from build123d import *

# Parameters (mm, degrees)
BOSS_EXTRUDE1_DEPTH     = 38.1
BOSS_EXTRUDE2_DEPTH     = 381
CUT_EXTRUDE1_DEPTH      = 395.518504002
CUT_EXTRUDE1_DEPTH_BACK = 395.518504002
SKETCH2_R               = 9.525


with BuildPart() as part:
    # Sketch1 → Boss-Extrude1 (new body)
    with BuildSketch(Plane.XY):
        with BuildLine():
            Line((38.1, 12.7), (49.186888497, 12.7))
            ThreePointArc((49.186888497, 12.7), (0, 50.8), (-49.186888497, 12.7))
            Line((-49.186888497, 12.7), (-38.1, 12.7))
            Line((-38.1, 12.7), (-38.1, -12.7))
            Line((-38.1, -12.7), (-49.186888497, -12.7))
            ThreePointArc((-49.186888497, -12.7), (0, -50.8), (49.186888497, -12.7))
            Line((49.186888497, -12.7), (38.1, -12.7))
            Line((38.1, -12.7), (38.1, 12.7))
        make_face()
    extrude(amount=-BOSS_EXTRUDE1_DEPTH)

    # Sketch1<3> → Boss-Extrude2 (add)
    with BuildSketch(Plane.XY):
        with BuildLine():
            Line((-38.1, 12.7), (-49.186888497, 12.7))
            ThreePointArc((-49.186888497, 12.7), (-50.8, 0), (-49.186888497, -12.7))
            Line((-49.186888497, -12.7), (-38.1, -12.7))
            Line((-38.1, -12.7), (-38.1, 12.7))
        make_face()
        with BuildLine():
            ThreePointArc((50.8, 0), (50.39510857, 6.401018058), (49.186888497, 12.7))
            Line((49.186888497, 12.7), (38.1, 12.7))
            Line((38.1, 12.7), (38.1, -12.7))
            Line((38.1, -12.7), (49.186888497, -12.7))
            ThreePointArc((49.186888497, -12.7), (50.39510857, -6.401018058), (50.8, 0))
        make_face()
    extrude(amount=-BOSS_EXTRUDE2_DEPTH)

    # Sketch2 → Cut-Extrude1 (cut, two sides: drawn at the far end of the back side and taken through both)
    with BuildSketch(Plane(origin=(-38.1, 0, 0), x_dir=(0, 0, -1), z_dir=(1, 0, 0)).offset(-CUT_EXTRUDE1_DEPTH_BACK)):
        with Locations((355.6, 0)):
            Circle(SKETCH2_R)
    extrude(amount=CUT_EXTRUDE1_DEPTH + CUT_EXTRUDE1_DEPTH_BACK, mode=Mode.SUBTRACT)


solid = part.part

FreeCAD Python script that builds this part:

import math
import FreeCAD as App
import Part
import Sketcher
from FreeCAD import Vector
Q = App.Units.Quantity

doc = App.newDocument("Part")
body = doc.addObject("PartDesign::Body", "Body")

# Sketch on XY plane
sketch1 = body.newObject("Sketcher::SketchObject", "Sketch")
sketch1.AttachmentSupport = (doc.getObject("XY_Plane"), [""])
sketch1.MapMode = "FlatFace"
sketch1.addGeometry([
    Part.LineSegment(Vector(38, 13, 0), Vector(49, 13, 0)),  # 0
    Part.ArcOfCircle(Part.Circle(Vector(0, 0, 0), Vector(0, 0, 1), 51), math.radians(14), math.radians(166)),  # 1
    Part.LineSegment(Vector(-49, 13, 0), Vector(-38, 13, 0)),  # 2
    Part.LineSegment(Vector(-38, 13, 0), Vector(-38, -13, 0)),  # 3
    Part.LineSegment(Vector(-38, -13, 0), Vector(-49, -13, 0)),  # 4
    Part.ArcOfCircle(Part.Circle(Vector(0, 0, 0), Vector(0, 0, 1), 51), math.radians(-166), math.radians(-14)),  # 5
    Part.LineSegment(Vector(49, -13, 0), Vector(38, -13, 0)),  # 6
    Part.LineSegment(Vector(38, -13, 0), Vector(38, 13, 0)),  # 7
], False)
sketch1.addConstraint([
    Sketcher.Constraint("Coincident", 0, 2, 1, 1),
    Sketcher.Constraint("Coincident", 1, 2, 2, 1),
    Sketcher.Constraint("Coincident", 2, 2, 3, 1),
    Sketcher.Constraint("Coincident", 3, 2, 4, 1),
    Sketcher.Constraint("Coincident", 4, 2, 5, 1),
    Sketcher.Constraint("Coincident", 5, 2, 6, 1),
    Sketcher.Constraint("Coincident", 6, 2, 7, 1),
    Sketcher.Constraint("Coincident", 7, 2, 0, 1),
    Sketcher.Constraint("Horizontal", 0),
    Sketcher.Constraint("Horizontal", 2),
    Sketcher.Constraint("Vertical", 3),
    Sketcher.Constraint("Horizontal", 4),
    Sketcher.Constraint("Horizontal", 6),
    Sketcher.Constraint("Vertical", 7),
    Sketcher.Constraint("Coincident", 1, 3, -1, 1),
    Sketcher.Constraint("Coincident", 5, 3, -1, 1),
    Sketcher.Constraint("Equal", 1, 5),
    Sketcher.Constraint("Symmetric", 2, 2, 6, 2, -1, 1),
    Sketcher.Constraint("Horizontal", 0, 2, 1, 2),
    Sketcher.Constraint("Horizontal", 4, 2, 5, 2),
    Sketcher.Constraint("Radius", 1, Q("2 in")),
    Sketcher.Constraint("DistanceY", 3, 2, 3, 1, Q("1 in")),
    Sketcher.Constraint("DistanceX", 3, 2, 6, 2, Q("3 in")),
])
pad1 = body.newObject("PartDesign::Pad", "Pad")
pad1.Profile = sketch1
pad1.Length = Q("1.5 in")
pad1.Reversed = True

# Sketch on XY plane
sketch2 = body.newObject("Sketcher::SketchObject", "Sketch001")
sketch2.AttachmentSupport = (doc.getObject("XY_Plane"), [""])
sketch2.MapMode = "FlatFace"
sketch2.addGeometry([
    Part.LineSegment(Vector(-38, 13, 0), Vector(-49, 13, 0)),  # 0
    Part.ArcOfCircle(Part.Circle(Vector(0, 0, 0), Vector(0, 0, 1), 51), math.radians(166), math.radians(194)),  # 1
    Part.LineSegment(Vector(-49, -13, 0), Vector(-38, -13, 0)),  # 2
    Part.LineSegment(Vector(-38, -13, 0), Vector(-38, 13, 0)),  # 3
    Part.ArcOfCircle(Part.Circle(Vector(0, 0, 0), Vector(0, 0, 1), 51), math.radians(0), math.radians(14.48)),  # 4
    Part.LineSegment(Vector(49, 13, 0), Vector(38, 13, 0)),  # 5
    Part.LineSegment(Vector(38, 13, 0), Vector(38, -13, 0)),  # 6
    Part.LineSegment(Vector(38, -13, 0), Vector(49, -13, 0)),  # 7
    Part.ArcOfCircle(Part.Circle(Vector(0, 0, 0), Vector(0, 0, 1), 51), math.radians(-14.48), math.radians(0)),  # 8
], False)
sketch2.addConstraint([
    Sketcher.Constraint("Coincident", 0, 2, 1, 1),
    Sketcher.Constraint("Coincident", 1, 2, 2, 1),
    Sketcher.Constraint("Coincident", 2, 2, 3, 1),
    Sketcher.Constraint("Coincident", 3, 2, 0, 1),
    Sketcher.Constraint("Coincident", 4, 2, 5, 1),
    Sketcher.Constraint("Coincident", 5, 2, 6, 1),
    Sketcher.Constraint("Coincident", 6, 2, 7, 1),
    Sketcher.Constraint("Coincident", 7, 2, 8, 1),
    Sketcher.Constraint("Tangent", 8, 2, 4, 1),
    Sketcher.Constraint("Horizontal", 0),
    Sketcher.Constraint("Horizontal", 2),
    Sketcher.Constraint("Vertical", 3),
    Sketcher.Constraint("Horizontal", 5),
    Sketcher.Constraint("Vertical", 6),
    Sketcher.Constraint("Horizontal", 7),
    Sketcher.Constraint("Coincident", 1, 3, -1, 1),
    Sketcher.Constraint("Coincident", 4, 3, -1, 1),
    Sketcher.Constraint("Equal", 1, 4),
    Sketcher.Constraint("Equal", 4, 8),
    Sketcher.Constraint("Symmetric", 2, 2, 5, 2, -1, 1),
    Sketcher.Constraint("PointOnObject", 8, 2, -1),
    Sketcher.Constraint("Horizontal", 3, 2, 4, 2),
    Sketcher.Constraint("Horizontal", 2, 2, 6, 2),
    Sketcher.Constraint("Radius", 1, Q("2 in")),
    Sketcher.Constraint("DistanceY", 3, 1, 3, 2, Q("1 in")),
    Sketcher.Constraint("DistanceX", 3, 2, 5, 2, Q("3 in")),
])
pad2 = body.newObject("PartDesign::Pad", "Pad001")
pad2.Profile = sketch2
pad2.Length = Q("15 in")
pad2.Reversed = True

# Sketch on YZ plane
sketch3 = body.newObject("Sketcher::SketchObject", "Sketch002")
sketch3.AttachmentSupport = (doc.getObject("YZ_Plane"), [""])
sketch3.MapMode = "FlatFace"
sketch3.AttachmentOffset = App.Placement(Vector(0, 0, -1.5 * 25.4), App.Rotation())
sketch3.addGeometry(Part.Circle(Vector(0, -356, 0), Vector(0, 0, 1), 10), False)
sketch3.addConstraint([
    Sketcher.Constraint("PointOnObject", 0, 3, -2),
    Sketcher.Constraint("Diameter", 0, Q("0.75 in")),
    Sketcher.Constraint("DistanceY", 0, 3, -1, 1, Q("14 in")),
])
pocket1 = body.newObject("PartDesign::Pocket", "Pocket")
pocket1.Profile = sketch3
pocket1.Type = "ThroughAll"
pocket1.Midplane = True

doc.recompute()
